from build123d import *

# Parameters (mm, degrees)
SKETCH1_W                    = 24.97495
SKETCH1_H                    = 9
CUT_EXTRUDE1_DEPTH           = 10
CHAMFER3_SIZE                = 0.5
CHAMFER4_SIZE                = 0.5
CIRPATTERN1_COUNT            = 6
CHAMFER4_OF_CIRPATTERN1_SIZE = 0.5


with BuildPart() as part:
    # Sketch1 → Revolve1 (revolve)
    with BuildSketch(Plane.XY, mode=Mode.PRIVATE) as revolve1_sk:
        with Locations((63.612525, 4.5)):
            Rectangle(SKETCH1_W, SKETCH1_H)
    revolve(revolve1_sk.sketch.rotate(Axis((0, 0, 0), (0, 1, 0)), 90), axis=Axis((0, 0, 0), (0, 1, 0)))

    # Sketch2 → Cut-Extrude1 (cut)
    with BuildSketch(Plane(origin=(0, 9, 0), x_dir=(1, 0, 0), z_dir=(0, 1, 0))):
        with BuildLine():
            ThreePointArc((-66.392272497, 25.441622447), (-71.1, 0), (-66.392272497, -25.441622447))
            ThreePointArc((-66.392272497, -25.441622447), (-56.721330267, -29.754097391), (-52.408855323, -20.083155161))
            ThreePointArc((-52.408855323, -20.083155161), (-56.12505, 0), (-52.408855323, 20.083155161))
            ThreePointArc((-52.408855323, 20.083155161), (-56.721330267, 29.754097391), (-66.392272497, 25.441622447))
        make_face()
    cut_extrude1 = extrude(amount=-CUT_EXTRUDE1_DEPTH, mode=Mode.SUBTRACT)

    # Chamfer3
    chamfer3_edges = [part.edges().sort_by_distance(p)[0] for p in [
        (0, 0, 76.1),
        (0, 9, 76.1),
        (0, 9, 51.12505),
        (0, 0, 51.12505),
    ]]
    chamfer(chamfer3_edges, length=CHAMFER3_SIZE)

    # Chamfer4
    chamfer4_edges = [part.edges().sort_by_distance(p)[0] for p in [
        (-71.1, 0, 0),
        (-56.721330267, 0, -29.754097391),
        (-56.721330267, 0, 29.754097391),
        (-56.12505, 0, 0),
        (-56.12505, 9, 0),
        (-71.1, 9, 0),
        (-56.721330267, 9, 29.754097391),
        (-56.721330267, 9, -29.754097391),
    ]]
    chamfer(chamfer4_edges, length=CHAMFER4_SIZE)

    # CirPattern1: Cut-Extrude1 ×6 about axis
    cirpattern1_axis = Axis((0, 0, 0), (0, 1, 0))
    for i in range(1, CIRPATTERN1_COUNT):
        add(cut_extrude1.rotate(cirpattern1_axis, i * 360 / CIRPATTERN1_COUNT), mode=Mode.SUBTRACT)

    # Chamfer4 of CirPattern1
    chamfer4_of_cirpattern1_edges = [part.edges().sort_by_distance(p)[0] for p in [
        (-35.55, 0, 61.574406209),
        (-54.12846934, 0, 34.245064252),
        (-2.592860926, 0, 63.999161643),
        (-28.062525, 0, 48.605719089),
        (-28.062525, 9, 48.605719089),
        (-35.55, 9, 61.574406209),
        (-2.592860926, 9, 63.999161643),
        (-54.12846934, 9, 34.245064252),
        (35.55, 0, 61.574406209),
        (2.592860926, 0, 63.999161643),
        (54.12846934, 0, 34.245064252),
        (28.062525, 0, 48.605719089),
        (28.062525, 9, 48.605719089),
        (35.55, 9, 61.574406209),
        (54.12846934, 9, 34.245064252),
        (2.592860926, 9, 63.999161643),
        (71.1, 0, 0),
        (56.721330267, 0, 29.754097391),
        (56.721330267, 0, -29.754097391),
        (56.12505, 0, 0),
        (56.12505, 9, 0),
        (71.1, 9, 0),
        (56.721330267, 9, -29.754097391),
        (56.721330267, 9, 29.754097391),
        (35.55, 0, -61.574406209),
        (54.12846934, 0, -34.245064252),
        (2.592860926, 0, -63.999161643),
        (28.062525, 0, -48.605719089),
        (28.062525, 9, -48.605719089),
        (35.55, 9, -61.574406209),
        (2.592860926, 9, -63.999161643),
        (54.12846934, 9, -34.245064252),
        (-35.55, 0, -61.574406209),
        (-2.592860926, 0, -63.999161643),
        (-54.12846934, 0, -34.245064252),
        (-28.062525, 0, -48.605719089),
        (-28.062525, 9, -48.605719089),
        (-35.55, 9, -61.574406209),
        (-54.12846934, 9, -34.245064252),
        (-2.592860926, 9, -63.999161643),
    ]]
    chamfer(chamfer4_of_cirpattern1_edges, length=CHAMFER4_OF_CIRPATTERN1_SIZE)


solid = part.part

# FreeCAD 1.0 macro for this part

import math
import FreeCAD as App
import Part
import Sketcher
Q = App.Units.Quantity


def edges_at(feature, points):
    """Names of the edges that pass closest to the given points."""
    edges = feature.Shape.Edges
    near = lambda p: min(range(len(edges)), key=lambda i: edges[i].distToShape(Part.Vertex(*p))[0])
    return sorted({f"Edge{near(p) + 1}" for p in points})


def add_polygon(sketch, points):
    """Adds a closed chain of lines whose ends are joined by coincident constraints."""
    first, n = sketch.GeometryCount, len(points)
    for a, b in zip(points, points[1:] + points[:1]):
        sketch.addGeometry(Part.LineSegment(App.Vector(*a, 0), App.Vector(*b, 0)), False)
    for i in range(n):
        sketch.addConstraint(Sketcher.Constraint("Coincident", first + i, 2, first + (i + 1) % n, 1))

doc = App.newDocument("Part")
body = doc.addObject("PartDesign::Body", "Body")

sketch1 = doc.addObject("Sketcher::SketchObject", "Sketch")
body.addObject(sketch1)
sketch1.AttachmentSupport = (doc.XY_Plane, [""])
sketch1.MapMode = "FlatFace"
add_polygon(sketch1, [(51.12505, 9), (51.12505, 0), (76.1, 0), (76.1, 9)])
sketch1.addConstraint(Sketcher.Constraint("Vertical", 0))
sketch1.addConstraint(Sketcher.Constraint("Horizontal", 1))
sketch1.addConstraint(Sketcher.Constraint("Vertical", 2))
sketch1.addConstraint(Sketcher.Constraint("Horizontal", 3))
sketch1.addConstraint(Sketcher.Constraint("PointOnObject", 0, 2, -1))
sketch1.addConstraint(Sketcher.Constraint("DistanceY", 0, 2, 0, 1, Q("9 mm")))
sketch1.addConstraint(Sketcher.Constraint("DistanceX", -1, 1, 1, 2, Q("76.1 mm")))
sketch1.addConstraint(Sketcher.Constraint("DistanceX", 1, 1, 1, 2, Q("24.97495 mm")))
revolution = doc.addObject("PartDesign::Revolution", "Revolution")
body.addObject(revolution)
revolution.Profile = sketch1
revolution.ReferenceAxis = (sketch1, ["V_Axis"])
revolution.Angle = 360

sketch2 = doc.addObject("Sketcher::SketchObject", "Sketch001")
body.addObject(sketch2)
sketch2.AttachmentSupport = (doc.XZ_Plane, [""])
sketch2.MapMode = "FlatFace"
sketch2.AttachmentOffset = App.Placement(App.Vector(0, 0, -9), App.Rotation())
sketch2.addGeometry(Part.ArcOfCircle(Part.Circle(App.Vector(0, 0, 0), App.Vector(0, 0, 1), 71.1), math.radians(159.03309), math.radians(200.96691)), False)
sketch2.addGeometry(Part.ArcOfCircle(Part.Circle(App.Vector(-59.400564, 22.762389, 0), App.Vector(0, 0, 1), 7.487475), math.radians(-20.96691), math.radians(159.03309)), False)
sketch2.addGeometry(Part.ArcOfCircle(Part.Circle(App.Vector(0, 0, 0), App.Vector(0, 0, 1), 56.12505), math.radians(159.03309), math.radians(200.96691)), False)
sketch2.addGeometry(Part.ArcOfCircle(Part.Circle(App.Vector(-59.400564, -22.762389, 0), App.Vector(0, 0, 1), 7.487475), math.radians(-159.03309), math.radians(20.96691)), False)
sketch2.addConstraint(Sketcher.Constraint("Tangent", 0, 1, 1, 2))
sketch2.addConstraint(Sketcher.Constraint("Tangent", 1, 1, 2, 1))
sketch2.addConstraint(Sketcher.Constraint("Tangent", 2, 2, 3, 2))
sketch2.addConstraint(Sketcher.Constraint("Tangent", 3, 1, 0, 2))
sketch2.addConstraint(Sketcher.Constraint("Coincident", 0, 3, -1, 1))
sketch2.addConstraint(Sketcher.Constraint("Coincident", 2, 3, -1, 1))
sketch2.addConstraint(Sketcher.Constraint("Vertical", 1, 3, 3, 3))
sketch2.addConstraint(Sketcher.Constraint("Radius", 0, Q("71.1 mm")))
sketch2.addConstraint(Sketcher.Constraint("Radius", 2, Q("56.12505 mm")))
sketch2.addConstraint(Sketcher.Constraint("DistanceY", -1, 1, 1, 3, Q("22.762389 mm")))
pocket1 = doc.addObject("PartDesign::Pocket", "Pocket")
body.addObject(pocket1)
pocket1.Profile = sketch2
pocket1.Length = 10
pocket1.Reversed = True
doc.recompute()

chamfer = doc.addObject("PartDesign::Chamfer", "Chamfer")
body.addObject(chamfer)
chamfer.Base = (pocket1, edges_at(pocket1, [
    (0, 0, 76.1),
    (0, 9, 76.1),
    (0, 9, 51.125),
    (0, 0, 51.125),
]))
chamfer.Size = 0.5
doc.recompute()

chamfer2 = doc.addObject("PartDesign::Chamfer", "Chamfer001")
body.addObject(chamfer2)
chamfer2.Base = (chamfer, edges_at(chamfer, [
    (-71.1, 0, 0),
    (-56.721, 0, -29.754),
    (-56.721, 0, 29.754),
    (-56.125, 0, 0),
    (-56.125, 9, 0),
    (-71.1, 9, 0),
    (-56.721, 9, 29.754),
    (-56.721, 9, -29.754),
]))
chamfer2.Size = 0.5
doc.recompute()

polarpattern = doc.addObject("PartDesign::PolarPattern", "PolarPattern")
body.addObject(polarpattern)
polarpattern.Originals = [pocket1]
polarpattern.Axis = (doc.Y_Axis, [""])
polarpattern.Angle = 360
polarpattern.Occurrences = 6
body.Tip = polarpattern
doc.recompute()

chamfer3 = doc.addObject("PartDesign::Chamfer", "Chamfer002")
body.addObject(chamfer3)
chamfer3.Base = (polarpattern, edges_at(polarpattern, [
    (-35.55, 0, 61.574),
    (-54.128, 0, 34.245),
    (-2.593, 0, 63.999),
    (-28.063, 0, 48.606),
    (-28.063, 9, 48.606),
    (-35.55, 9, 61.574),
    (-2.593, 9, 63.999),
    (-54.128, 9, 34.245),
    (35.55, 0, 61.574),
    (2.593, 0, 63.999),
    (54.128, 0, 34.245),
    (28.063, 0, 48.606),
    (28.063, 9, 48.606),
    (35.55, 9, 61.574),
    (54.128, 9, 34.245),
    (2.593, 9, 63.999),
    (71.1, 0, 0),
    (56.721, 0, 29.754),
    (56.721, 0, -29.754),
    (56.125, 0, 0),
    (56.125, 9, 0),
    (71.1, 9, 0),
    (56.721, 9, -29.754),
    (56.721, 9, 29.754),
    (35.55, 0, -61.574),
    (54.128, 0, -34.245),
    (2.593, 0, -63.999),
    (28.063, 0, -48.606),
    (28.063, 9, -48.606),
    (35.55, 9, -61.574),
    (2.593, 9, -63.999),
    (54.128, 9, -34.245),
    (-35.55, 0, -61.574),
    (-2.593, 0, -63.999),
    (-54.128, 0, -34.245),
    (-28.063, 0, -48.606),
    (-28.063, 9, -48.606),
    (-35.55, 9, -61.574),
    (-54.128, 9, -34.245),
    (-2.593, 9, -63.999),
]))
chamfer3.Size = 0.5

doc.recompute()
